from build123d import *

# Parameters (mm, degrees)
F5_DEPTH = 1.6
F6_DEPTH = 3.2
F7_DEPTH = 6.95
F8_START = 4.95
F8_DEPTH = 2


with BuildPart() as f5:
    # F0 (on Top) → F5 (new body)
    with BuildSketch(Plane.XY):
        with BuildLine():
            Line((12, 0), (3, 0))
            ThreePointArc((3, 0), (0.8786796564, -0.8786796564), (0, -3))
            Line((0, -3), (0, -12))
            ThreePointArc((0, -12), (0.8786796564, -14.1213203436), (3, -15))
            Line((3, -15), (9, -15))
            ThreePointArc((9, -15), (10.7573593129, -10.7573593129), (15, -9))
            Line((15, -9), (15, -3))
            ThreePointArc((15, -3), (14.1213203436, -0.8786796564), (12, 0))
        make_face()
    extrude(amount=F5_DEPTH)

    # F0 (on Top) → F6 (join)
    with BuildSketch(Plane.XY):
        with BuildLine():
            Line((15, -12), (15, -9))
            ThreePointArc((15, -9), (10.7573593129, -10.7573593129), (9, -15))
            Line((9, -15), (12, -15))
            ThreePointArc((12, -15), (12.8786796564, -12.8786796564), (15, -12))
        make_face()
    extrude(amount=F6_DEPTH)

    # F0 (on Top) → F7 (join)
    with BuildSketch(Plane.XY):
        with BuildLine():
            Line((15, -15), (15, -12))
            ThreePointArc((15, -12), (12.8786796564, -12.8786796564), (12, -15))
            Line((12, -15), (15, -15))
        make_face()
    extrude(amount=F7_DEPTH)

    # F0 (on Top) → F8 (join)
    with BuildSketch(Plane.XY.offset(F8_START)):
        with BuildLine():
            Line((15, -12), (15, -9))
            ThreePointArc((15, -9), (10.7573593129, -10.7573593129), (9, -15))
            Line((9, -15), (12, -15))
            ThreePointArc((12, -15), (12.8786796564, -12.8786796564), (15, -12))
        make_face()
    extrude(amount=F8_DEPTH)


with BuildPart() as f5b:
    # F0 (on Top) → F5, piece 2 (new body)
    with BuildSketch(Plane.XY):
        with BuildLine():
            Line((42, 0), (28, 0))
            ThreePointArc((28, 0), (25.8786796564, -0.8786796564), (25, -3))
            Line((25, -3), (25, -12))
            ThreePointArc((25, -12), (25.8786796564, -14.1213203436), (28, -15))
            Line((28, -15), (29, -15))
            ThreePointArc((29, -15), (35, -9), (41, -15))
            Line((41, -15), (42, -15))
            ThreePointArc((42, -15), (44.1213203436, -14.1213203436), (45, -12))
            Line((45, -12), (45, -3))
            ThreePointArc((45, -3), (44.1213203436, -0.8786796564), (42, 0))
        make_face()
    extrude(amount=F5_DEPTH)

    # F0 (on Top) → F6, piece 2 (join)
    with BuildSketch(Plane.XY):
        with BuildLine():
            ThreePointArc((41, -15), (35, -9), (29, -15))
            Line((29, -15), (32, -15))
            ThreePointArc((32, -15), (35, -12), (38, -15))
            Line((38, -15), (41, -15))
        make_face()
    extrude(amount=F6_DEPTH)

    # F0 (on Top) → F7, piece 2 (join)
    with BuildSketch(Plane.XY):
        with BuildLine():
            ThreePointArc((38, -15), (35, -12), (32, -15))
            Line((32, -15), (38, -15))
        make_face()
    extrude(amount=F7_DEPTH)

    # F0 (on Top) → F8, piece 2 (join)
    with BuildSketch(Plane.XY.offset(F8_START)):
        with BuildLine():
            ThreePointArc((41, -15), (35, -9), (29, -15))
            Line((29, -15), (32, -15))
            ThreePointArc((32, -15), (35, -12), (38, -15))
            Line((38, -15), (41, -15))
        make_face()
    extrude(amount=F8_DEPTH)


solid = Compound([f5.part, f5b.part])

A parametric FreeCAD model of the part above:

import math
import FreeCAD as App
import Part
import Sketcher
Q = App.Units.Quantity

doc = App.newDocument("Part")
body = doc.addObject("PartDesign::Body", "Body")

# Sketch on XY plane
sketch1 = body.newObject("Sketcher::SketchObject", "Sketch")
sketch1.AttachmentSupport = (doc.getObject("XY_Plane"), [""])
sketch1.MapMode = "FlatFace"
sketch1.addGeometry([
    Part.LineSegment(App.Vector(12, 0, 0), App.Vector(3, 0, 0)),  # 0
    Part.ArcOfCircle(Part.Circle(App.Vector(3, -3, 0), App.Vector(0, 0, 1), 3), math.radians(90), math.radians(180)),  # 1
    Part.LineSegment(App.Vector(0, -3, 0), App.Vector(0, -12, 0)),  # 2
    Part.ArcOfCircle(Part.Circle(App.Vector(3, -12, 0), App.Vector(0, 0, 1), 3), math.radians(180), math.radians(270)),  # 3
    Part.LineSegment(App.Vector(3, -15, 0), App.Vector(9, -15, 0)),  # 4
    Part.ArcOfCircle(Part.Circle(App.Vector(15, -15, 0), App.Vector(0, 0, 1), 6), math.radians(90), math.radians(180)),  # 5
    Part.LineSegment(App.Vector(15, -9, 0), App.Vector(15, -3, 0)),  # 6
    Part.ArcOfCircle(Part.Circle(App.Vector(12, -3, 0), App.Vector(0, 0, 1), 3), math.radians(0), math.radians(90)),  # 7
], False)
sketch1.addConstraint([
    Sketcher.Constraint("Tangent", 0, 2, 1, 1),
    Sketcher.Constraint("Tangent", 1, 2, 2, 1),
    Sketcher.Constraint("Tangent", 2, 2, 3, 1),
    Sketcher.Constraint("Tangent", 3, 2, 4, 1),
    Sketcher.Constraint("Coincident", 4, 2, 5, 2),
    Sketcher.Constraint("Coincident", 5, 1, 6, 1),
    Sketcher.Constraint("Tangent", 6, 2, 7, 1),
    Sketcher.Constraint("Tangent", 7, 2, 0, 1),
    Sketcher.Constraint("Horizontal", 0),
    Sketcher.Constraint("Vertical", 2),
    Sketcher.Constraint("Horizontal", 4),
    Sketcher.Constraint("Vertical", 6),
    Sketcher.Constraint("Equal", 1, 3),
    Sketcher.Constraint("Equal", 3, 7),
    Sketcher.Constraint("PointOnObject", 0, 2, -1),
    Sketcher.Constraint("PointOnObject", 1, 2, -2),
    Sketcher.Constraint("Horizontal", 5, 3, 3, 2),
    Sketcher.Constraint("Equal", 0, 2),
    Sketcher.Constraint("Equal", 4, 6),
    Sketcher.Constraint("Radius", 1, Q("3 mm")),
    Sketcher.Constraint("Radius", 5, Q("6 mm")),
    Sketcher.Constraint("DistanceX", 0, 2, 0, 1, Q("9 mm")),
])
pad1 = body.newObject("PartDesign::Pad", "Pad")
pad1.Profile = sketch1
pad1.Length = 1.6

# Sketch on XY plane
sketch2 = body.newObject("Sketcher::SketchObject", "Sketch001")
sketch2.AttachmentSupport = (doc.getObject("XY_Plane"), [""])
sketch2.MapMode = "FlatFace"
sketch2.addGeometry([
    Part.LineSegment(App.Vector(15, -12, 0), App.Vector(15, -9, 0)),
    Part.ArcOfCircle(Part.Circle(App.Vector(15, -15, 0), App.Vector(0, 0, 1), 6), math.radians(90), math.radians(180)),
    Part.LineSegment(App.Vector(9, -15, 0), App.Vector(12, -15, 0)),
    Part.ArcOfCircle(Part.Circle(App.Vector(15, -15, 0), App.Vector(0, 0, 1), 3), math.radians(90), math.radians(180)),
], False)
sketch2.addConstraint([
    Sketcher.Constraint("Coincident", 0, 2, 1, 1),
    Sketcher.Constraint("Coincident", 1, 2, 2, 1),
    Sketcher.Constraint("Coincident", 2, 2, 3, 2),
    Sketcher.Constraint("Coincident", 3, 1, 0, 1),
    Sketcher.Constraint("Vertical", 0),
    Sketcher.Constraint("Horizontal", 2),
    Sketcher.Constraint("Coincident", 3, 3, 1, 3),
    Sketcher.Constraint("Horizontal", 3, 3, 1, 2),
    Sketcher.Constraint("Vertical", 3, 3, 0, 2),
    Sketcher.Constraint("Radius", 1, Q("6 mm")),
    Sketcher.Constraint("Radius", 3, Q("3 mm")),
    Sketcher.Constraint("DistanceX", -1, 1, 1, 3, Q("15 mm")),
    Sketcher.Constraint("DistanceY", 1, 3, -1, 1, Q("15 mm")),
])
pad2 = body.newObject("PartDesign::Pad", "Pad001")
pad2.Profile = sketch2
pad2.Length = 3.2

# Sketch on XY plane
sketch3 = body.newObject("Sketcher::SketchObject", "Sketch002")
sketch3.AttachmentSupport = (doc.getObject("XY_Plane"), [""])
sketch3.MapMode = "FlatFace"
sketch3.addGeometry([
    Part.LineSegment(App.Vector(15, -15, 0), App.Vector(15, -12, 0)),
    Part.ArcOfCircle(Part.Circle(App.Vector(15, -15, 0), App.Vector(0, 0, 1), 3), math.radians(90), math.radians(180)),
    Part.LineSegment(App.Vector(12, -15, 0), App.Vector(15, -15, 0)),
], False)
sketch3.addConstraint([
    Sketcher.Constraint("Coincident", 0, 2, 1, 1),
    Sketcher.Constraint("Coincident", 1, 2, 2, 1),
    Sketcher.Constraint("Coincident", 2, 2, 0, 1),
    Sketcher.Constraint("Vertical", 0),
    Sketcher.Constraint("Horizontal", 2),
    Sketcher.Constraint("Coincident", 2, 2, 1, 3),
    Sketcher.Constraint("Radius", 1, Q("3 mm")),
    Sketcher.Constraint("DistanceX", -1, 1, 1, 3, Q("15 mm")),
    Sketcher.Constraint("DistanceY", 1, 3, -1, 1, Q("15 mm")),
])
pad3 = body.newObject("PartDesign::Pad", "Pad002")
pad3.Profile = sketch3
pad3.Length = 6.95

# Sketch on XY plane
sketch4 = body.newObject("Sketcher::SketchObject", "Sketch003")
sketch4.AttachmentSupport = (doc.getObject("XY_Plane"), [""])
sketch4.MapMode = "FlatFace"
sketch4.AttachmentOffset = App.Placement(App.Vector(0, 0, 4.95), App.Rotation())
sketch4.addGeometry([
    Part.LineSegment(App.Vector(15, -12, 0), App.Vector(15, -9, 0)),
    Part.ArcOfCircle(Part.Circle(App.Vector(15, -15, 0), App.Vector(0, 0, 1), 6), math.radians(90), math.radians(180)),
    Part.LineSegment(App.Vector(9, -15, 0), App.Vector(12, -15, 0)),
    Part.ArcOfCircle(Part.Circle(App.Vector(15, -15, 0), App.Vector(0, 0, 1), 3), math.radians(90), math.radians(180)),
], False)
sketch4.addConstraint([
    Sketcher.Constraint("Coincident", 0, 2, 1, 1),
    Sketcher.Constraint("Coincident", 1, 2, 2, 1),
    Sketcher.Constraint("Coincident", 2, 2, 3, 2),
    Sketcher.Constraint("Coincident", 3, 1, 0, 1),
    Sketcher.Constraint("Vertical", 0),
    Sketcher.Constraint("Horizontal", 2),
    Sketcher.Constraint("Coincident", 3, 3, 1, 3),
    Sketcher.Constraint("Horizontal", 3, 3, 1, 2),
    Sketcher.Constraint("Vertical", 3, 3, 0, 2),
    Sketcher.Constraint("Radius", 1, Q("6 mm")),
    Sketcher.Constraint("Radius", 3, Q("3 mm")),
    Sketcher.Constraint("DistanceX", -1, 1, 1, 3, Q("15 mm")),
    Sketcher.Constraint("DistanceY", 1, 3, -1, 1, Q("15 mm")),
])
pad4 = body.newObject("PartDesign::Pad", "Pad003")
pad4.Profile = sketch4
pad4.Length = 2
body2 = doc.addObject("PartDesign::Body", "Body001")

# Sketch on XY plane
sketch5 = body2.newObject("Sketcher::SketchObject", "Sketch004")
sketch5.AttachmentSupport = (doc.getObject("XY_Plane001"), [""])
sketch5.MapMode = "FlatFace"
sketch5.addGeometry([
    Part.LineSegment(App.Vector(42, 0, 0), App.Vector(28, 0, 0)),  # 0
    Part.ArcOfCircle(Part.Circle(App.Vector(28, -3, 0), App.Vector(0, 0, 1), 3), math.radians(90), math.radians(180)),  # 1
    Part.LineSegment(App.Vector(25, -3, 0), App.Vector(25, -12, 0)),  # 2
    Part.ArcOfCircle(Part.Circle(App.Vector(28, -12, 0), App.Vector(0, 0, 1), 3), math.radians(180), math.radians(270)),  # 3
    Part.LineSegment(App.Vector(28, -15, 0), App.Vector(29, -15, 0)),  # 4
    Part.ArcOfCircle(Part.Circle(App.Vector(35, -15, 0), App.Vector(0, 0, 1), 6), math.radians(0), math.radians(180)),  # 5
    Part.LineSegment(App.Vector(41, -15, 0), App.Vector(42, -15, 0)),  # 6
    Part.ArcOfCircle(Part.Circle(App.Vector(42, -12, 0), App.Vector(0, 0, 1), 3), math.radians(-90), math.radians(0)),  # 7
    Part.LineSegment(App.Vector(45, -12, 0), App.Vector(45, -3, 0)),  # 8
    Part.ArcOfCircle(Part.Circle(App.Vector(42, -3, 0), App.Vector(0, 0, 1), 3), math.radians(0), math.radians(90)),  # 9
], False)
sketch5.addConstraint([
    Sketcher.Constraint("Tangent", 0, 2, 1, 1),
    Sketcher.Constraint("Tangent", 1, 2, 2, 1),
    Sketcher.Constraint("Tangent", 2, 2, 3, 1),
    Sketcher.Constraint("Tangent", 3, 2, 4, 1),
    Sketcher.Constraint("Coincident", 4, 2, 5, 2),
    Sketcher.Constraint("Coincident", 5, 1, 6, 1),
    Sketcher.Constraint("Tangent", 6, 2, 7, 1),
    Sketcher.Constraint("Tangent", 7, 2, 8, 1),
    Sketcher.Constraint("Tangent", 8, 2, 9, 1),
    Sketcher.Constraint("Tangent", 9, 2, 0, 1),
    Sketcher.Constraint("Horizontal", 0),
    Sketcher.Constraint("Vertical", 2),
    Sketcher.Constraint("Horizontal", 4),
    Sketcher.Constraint("Horizontal", 6),
    Sketcher.Constraint("Vertical", 8),
    Sketcher.Constraint("Equal", 1, 3),
    Sketcher.Constraint("Equal", 3, 7),
    Sketcher.Constraint("Equal", 7, 9),
    Sketcher.Constraint("PointOnObject", 0, 2, -1),
    Sketcher.Constraint("Horizontal", 3, 3, 7, 3),
    Sketcher.Constraint("Horizontal", 5, 3, 3, 2),
    Sketcher.Constraint("Equal", 4, 6),
    Sketcher.Constraint("Radius", 1, Q("3 mm")),
    Sketcher.Constraint("Radius", 5, Q("6 mm")),
    Sketcher.Constraint("DistanceX", 0, 2, 0, 1, Q("14 mm")),
    Sketcher.Constraint("DistanceY", 2, 2, 2, 1, Q("9 mm")),
    Sketcher.Constraint("DistanceX", -1, 1, 1, 3, Q("28 mm")),
])
pad5 = body2.newObject("PartDesign::Pad", "Pad004")
pad5.Profile = sketch5
pad5.Length = 1.6

# Sketch on XY plane
sketch6 = body2.newObject("Sketcher::SketchObject", "Sketch005")
sketch6.AttachmentSupport = (doc.getObject("XY_Plane001"), [""])
sketch6.MapMode = "FlatFace"
sketch6.addGeometry([
    Part.ArcOfCircle(Part.Circle(App.Vector(35, -15, 0), App.Vector(0, 0, 1), 6), math.radians(0), math.radians(180)),
    Part.LineSegment(App.Vector(29, -15, 0), App.Vector(32, -15, 0)),
    Part.ArcOfCircle(Part.Circle(App.Vector(35, -15, 0), App.Vector(0, 0, 1), 3), math.radians(0), math.radians(180)),
    Part.LineSegment(App.Vector(38, -15, 0), App.Vector(41, -15, 0)),
], False)
sketch6.addConstraint([
    Sketcher.Constraint("Coincident", 0, 2, 1, 1),
    Sketcher.Constraint("Coincident", 1, 2, 2, 2),
    Sketcher.Constraint("Coincident", 2, 1, 3, 1),
    Sketcher.Constraint("Coincident", 3, 2, 0, 1),
    Sketcher.Constraint("Horizontal", 1),
    Sketcher.Constraint("Horizontal", 3),
    Sketcher.Constraint("Coincident", 2, 3, 0, 3),
    Sketcher.Constraint("Horizontal", 2, 3, 0, 2),
    Sketcher.Constraint("Horizontal", 1, 2, 2, 1),
    Sketcher.Constraint("Radius", 0, Q("6 mm")),
    Sketcher.Constraint("Radius", 2, Q("3 mm")),
    Sketcher.Constraint("DistanceX", -1, 1, 0, 3, Q("35 mm")),
    Sketcher.Constraint("DistanceY", 0, 3, -1, 1, Q("15 mm")),
])
pad6 = body2.newObject("PartDesign::Pad", "Pad005")
pad6.Profile = sketch6
pad6.Length = 3.2

# Sketch on XY plane
sketch7 = body2.newObject("Sketcher::SketchObject", "Sketch006")
sketch7.AttachmentSupport = (doc.getObject("XY_Plane001"), [""])
sketch7.MapMode = "FlatFace"
sketch7.addGeometry([
    Part.ArcOfCircle(Part.Circle(App.Vector(35, -15, 0), App.Vector(0, 0, 1), 3), math.radians(0), math.radians(180)),
    Part.LineSegment(App.Vector(32, -15, 0), App.Vector(38, -15, 0)),
], False)
sketch7.addConstraint([
    Sketcher.Constraint("Coincident", 0, 1, 1, 2),
    Sketcher.Constraint("Coincident", 1, 1, 0, 2),
    Sketcher.Constraint("Horizontal", 1),
    Sketcher.Constraint("Radius", 0, Q("3 mm")),
    Sketcher.Constraint("DistanceX", -1, 1, 0, 3, Q("35 mm")),
    Sketcher.Constraint("DistanceY", 0, 3, -1, 1, Q("15 mm")),
    Sketcher.Constraint("DistanceY", 0, 1, -1, 1, Q("15 mm")),
])
pad7 = body2.newObject("PartDesign::Pad", "Pad006")
pad7.Profile = sketch7
pad7.Length = 6.95

# Sketch on XY plane
sketch8 = body2.newObject("Sketcher::SketchObject", "Sketch007")
sketch8.AttachmentSupport = (doc.getObject("XY_Plane001"), [""])
sketch8.MapMode = "FlatFace"
sketch8.AttachmentOffset = App.Placement(App.Vector(0, 0, 4.95), App.Rotation())
sketch8.addGeometry([
    Part.ArcOfCircle(Part.Circle(App.Vector(35, -15, 0), App.Vector(0, 0, 1), 6), math.radians(0), math.radians(180)),
    Part.LineSegment(App.Vector(29, -15, 0), App.Vector(32, -15, 0)),
    Part.ArcOfCircle(Part.Circle(App.Vector(35, -15, 0), App.Vector(0, 0, 1), 3), math.radians(0), math.radians(180)),
    Part.LineSegment(App.Vector(38, -15, 0), App.Vector(41, -15, 0)),
], False)
sketch8.addConstraint([
    Sketcher.Constraint("Coincident", 0, 2, 1, 1),
    Sketcher.Constraint("Coincident", 1, 2, 2, 2),
    Sketcher.Constraint("Coincident", 2, 1, 3, 1),
    Sketcher.Constraint("Coincident", 3, 2, 0, 1),
    Sketcher.Constraint("Horizontal", 1),
    Sketcher.Constraint("Horizontal", 3),
    Sketcher.Constraint("Coincident", 2, 3, 0, 3),
    Sketcher.Constraint("Horizontal", 2, 3, 0, 2),
    Sketcher.Constraint("Horizontal", 1, 2, 2, 1),
    Sketcher.Constraint("Radius", 0, Q("6 mm")),
    Sketcher.Constraint("Radius", 2, Q("3 mm")),
    Sketcher.Constraint("DistanceX", -1, 1, 0, 3, Q("35 mm")),
    Sketcher.Constraint("DistanceY", 0, 3, -1, 1, Q("15 mm")),
])
pad8 = body2.newObject("PartDesign::Pad", "Pad007")
pad8.Profile = sketch8
pad8.Length = 2

doc.recompute()
